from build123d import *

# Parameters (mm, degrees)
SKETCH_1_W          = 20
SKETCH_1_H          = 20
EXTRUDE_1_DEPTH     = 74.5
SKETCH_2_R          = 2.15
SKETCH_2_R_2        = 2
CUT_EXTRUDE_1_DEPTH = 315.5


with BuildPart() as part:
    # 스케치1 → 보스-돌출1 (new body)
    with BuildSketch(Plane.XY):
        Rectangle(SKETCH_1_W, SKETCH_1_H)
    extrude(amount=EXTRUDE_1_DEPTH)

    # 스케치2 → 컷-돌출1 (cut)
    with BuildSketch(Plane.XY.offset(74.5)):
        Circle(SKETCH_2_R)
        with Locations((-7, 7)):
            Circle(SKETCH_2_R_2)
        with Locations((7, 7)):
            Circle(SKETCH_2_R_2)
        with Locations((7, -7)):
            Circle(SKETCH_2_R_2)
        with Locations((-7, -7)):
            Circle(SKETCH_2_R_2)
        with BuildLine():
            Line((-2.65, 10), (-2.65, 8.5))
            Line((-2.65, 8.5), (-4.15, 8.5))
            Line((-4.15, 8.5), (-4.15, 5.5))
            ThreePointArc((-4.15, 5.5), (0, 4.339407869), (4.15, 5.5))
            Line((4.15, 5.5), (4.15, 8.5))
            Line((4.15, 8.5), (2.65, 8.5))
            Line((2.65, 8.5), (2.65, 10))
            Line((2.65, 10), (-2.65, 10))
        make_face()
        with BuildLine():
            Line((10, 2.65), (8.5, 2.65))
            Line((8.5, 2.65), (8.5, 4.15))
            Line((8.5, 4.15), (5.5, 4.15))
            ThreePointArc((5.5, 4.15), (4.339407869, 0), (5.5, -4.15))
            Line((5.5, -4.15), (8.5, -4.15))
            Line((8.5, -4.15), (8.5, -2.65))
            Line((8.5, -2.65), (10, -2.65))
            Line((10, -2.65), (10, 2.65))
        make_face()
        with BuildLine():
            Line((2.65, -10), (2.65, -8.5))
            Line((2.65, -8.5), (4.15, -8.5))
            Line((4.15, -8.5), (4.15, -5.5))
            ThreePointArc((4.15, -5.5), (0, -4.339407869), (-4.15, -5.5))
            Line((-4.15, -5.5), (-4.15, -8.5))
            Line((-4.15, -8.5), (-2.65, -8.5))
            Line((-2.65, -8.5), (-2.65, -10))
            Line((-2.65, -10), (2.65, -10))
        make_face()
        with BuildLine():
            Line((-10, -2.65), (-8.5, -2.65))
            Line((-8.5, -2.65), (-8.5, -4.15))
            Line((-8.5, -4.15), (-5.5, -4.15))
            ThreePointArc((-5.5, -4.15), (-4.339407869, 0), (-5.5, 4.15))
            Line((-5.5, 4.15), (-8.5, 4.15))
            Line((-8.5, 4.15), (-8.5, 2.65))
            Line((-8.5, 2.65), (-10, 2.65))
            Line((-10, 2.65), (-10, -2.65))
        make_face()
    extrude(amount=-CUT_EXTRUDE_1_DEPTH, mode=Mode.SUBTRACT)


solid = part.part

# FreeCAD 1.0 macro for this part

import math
import FreeCAD as App
import Part
import Sketcher
from FreeCAD import Vector
Q = App.Units.Quantity


def add_polygon(sketch, points):
    """Adds a closed chain of lines whose ends are joined by coincident constraints."""
    first, n = sketch.GeometryCount, len(points)
    for a, b in zip(points, points[1:] + points[:1]):
        sketch.addGeometry(Part.LineSegment(App.Vector(*a, 0), App.Vector(*b, 0)), False)
    for i in range(n):
        sketch.addConstraint(Sketcher.Constraint("Coincident", first + i, 2, first + (i + 1) % n, 1))

doc = App.newDocument("Part")
body = doc.addObject("PartDesign::Body", "Body")

# Sketch on XY plane
sketch1 = body.newObject("Sketcher::SketchObject", "Sketch")
sketch1.AttachmentSupport = (doc.getObject("XY_Plane"), [""])
sketch1.MapMode = "FlatFace"
add_polygon(sketch1, [(-10, 10), (-10, -10), (10, -10), (10, 10)])  # lines 0-3
sketch1.addConstraint(Sketcher.Constraint("Vertical", 0))
sketch1.addConstraint(Sketcher.Constraint("Horizontal", 1))
sketch1.addConstraint(Sketcher.Constraint("Vertical", 2))
sketch1.addConstraint(Sketcher.Constraint("Horizontal", 3))
sketch1.addConstraint(Sketcher.Constraint("Symmetric", 0, 2, 2, 2, -1, 1))
sketch1.addConstraint(Sketcher.Constraint("Equal", 3, 0))
sketch1.addConstraint(Sketcher.Constraint("DistanceX", 1, 1, 1, 2, Q("20 mm")))
pad1 = body.newObject("PartDesign::Pad", "Pad")
pad1.Profile = sketch1
pad1.Length = 74.5

# Sketch on XY plane
sketch2 = body.newObject("Sketcher::SketchObject", "Sketch001")
sketch2.AttachmentSupport = (doc.getObject("XY_Plane"), [""])
sketch2.MapMode = "FlatFace"
sketch2.AttachmentOffset = App.Placement(Vector(0, 0, 74.5), App.Rotation())
sketch2.addGeometry(Part.Circle(Vector(0, 0, 0), Vector(0, 0, 1), 2.15), False)
sketch2.addGeometry(Part.Circle(Vector(-7, 7, 0), Vector(0, 0, 1), 2), False)
sketch2.addGeometry(Part.Circle(Vector(7, 7, 0), Vector(0, 0, 1), 2), False)
sketch2.addGeometry(Part.Circle(Vector(7, -7, 0), Vector(0, 0, 1), 2), False)
sketch2.addGeometry(Part.Circle(Vector(-7, -7, 0), Vector(0, 0, 1), 2), False)
sketch2.addGeometry(Part.LineSegment(Vector(-2.65, 10, 0), Vector(-2.65, 8.5, 0)), False)
sketch2.addGeometry(Part.LineSegment(Vector(-2.65, 8.5, 0), Vector(-4.15, 8.5, 0)), False)
sketch2.addGeometry(Part.LineSegment(Vector(-4.15, 8.5, 0), Vector(-4.15, 5.5, 0)), False)
sketch2.addGeometry(Part.ArcOfCircle(Part.Circle(Vector(0, 12.339408, 0), Vector(0, 0, 1), 8), math.radians(-121.248441), math.radians(-58.751559)), False)
sketch2.addGeometry(Part.LineSegment(Vector(4.15, 5.5, 0), Vector(4.15, 8.5, 0)), False)
sketch2.addGeometry(Part.LineSegment(Vector(4.15, 8.5, 0), Vector(2.65, 8.5, 0)), False)
sketch2.addGeometry(Part.LineSegment(Vector(2.65, 8.5, 0), Vector(2.65, 10, 0)), False)
sketch2.addGeometry(Part.LineSegment(Vector(2.65, 10, 0), Vector(-2.65, 10, 0)), False)
sketch2.addGeometry(Part.LineSegment(Vector(10, 2.65, 0), Vector(8.5, 2.65, 0)), False)
sketch2.addGeometry(Part.LineSegment(Vector(8.5, 2.65, 0), Vector(8.5, 4.15, 0)), False)
sketch2.addGeometry(Part.LineSegment(Vector(8.5, 4.15, 0), Vector(5.5, 4.15, 0)), False)
sketch2.addGeometry(Part.ArcOfCircle(Part.Circle(Vector(12.339408, 0, 0), Vector(0, 0, 1), 8), math.radians(148.751559), math.radians(211.248441)), False)
sketch2.addGeometry(Part.LineSegment(Vector(5.5, -4.15, 0), Vector(8.5, -4.15, 0)), False)
sketch2.addGeometry(Part.LineSegment(Vector(8.5, -4.15, 0), Vector(8.5, -2.65, 0)), False)
sketch2.addGeometry(Part.LineSegment(Vector(8.5, -2.65, 0), Vector(10, -2.65, 0)), False)
sketch2.addGeometry(Part.LineSegment(Vector(10, -2.65, 0), Vector(10, 2.65, 0)), False)
sketch2.addGeometry(Part.LineSegment(Vector(2.65, -10, 0), Vector(2.65, -8.5, 0)), False)
sketch2.addGeometry(Part.LineSegment(Vector(2.65, -8.5, 0), Vector(4.15, -8.5, 0)), False)
sketch2.addGeometry(Part.LineSegment(Vector(4.15, -8.5, 0), Vector(4.15, -5.5, 0)), False)
sketch2.addGeometry(Part.ArcOfCircle(Part.Circle(Vector(0, -12.339408, 0), Vector(0, 0, 1), 8), math.radians(58.751559), math.radians(121.248441)), False)
sketch2.addGeometry(Part.LineSegment(Vector(-4.15, -5.5, 0), Vector(-4.15, -8.5, 0)), False)
sketch2.addGeometry(Part.LineSegment(Vector(-4.15, -8.5, 0), Vector(-2.65, -8.5, 0)), False)
sketch2.addGeometry(Part.LineSegment(Vector(-2.65, -8.5, 0), Vector(-2.65, -10, 0)), False)
sketch2.addGeometry(Part.LineSegment(Vector(-2.65, -10, 0), Vector(2.65, -10, 0)), False)
sketch2.addGeometry(Part.LineSegment(Vector(-10, -2.65, 0), Vector(-8.5, -2.65, 0)), False)
sketch2.addGeometry(Part.LineSegment(Vector(-8.5, -2.65, 0), Vector(-8.5, -4.15, 0)), False)
sketch2.addGeometry(Part.LineSegment(Vector(-8.5, -4.15, 0), Vector(-5.5, -4.15, 0)), False)
sketch2.addGeometry(Part.ArcOfCircle(Part.Circle(Vector(-12.339408, 0, 0), Vector(0, 0, 1), 8), math.radians(-31.248441), math.radians(31.248441)), False)
sketch2.addGeometry(Part.LineSegment(Vector(-5.5, 4.15, 0), Vector(-8.5, 4.15, 0)), False)
sketch2.addGeometry(Part.LineSegment(Vector(-8.5, 4.15, 0), Vector(-8.5, 2.65, 0)), False)
sketch2.addGeometry(Part.LineSegment(Vector(-8.5, 2.65, 0), Vector(-10, 2.65, 0)), False)
sketch2.addGeometry(Part.LineSegment(Vector(-10, 2.65, 0), Vector(-10, -2.65, 0)), False)
sketch2.addConstraint(Sketcher.Constraint("Coincident", 5, 2, 6, 1))
sketch2.addConstraint(Sketcher.Constraint("Coincident", 6, 2, 7, 1))
sketch2.addConstraint(Sketcher.Constraint("Coincident", 7, 2, 8, 1))
sketch2.addConstraint(Sketcher.Constraint("Coincident", 8, 2, 9, 1))
sketch2.addConstraint(Sketcher.Constraint("Coincident", 9, 2, 10, 1))
sketch2.addConstraint(Sketcher.Constraint("Coincident", 10, 2, 11, 1))
sketch2.addConstraint(Sketcher.Constraint("Coincident", 11, 2, 12, 1))
sketch2.addConstraint(Sketcher.Constraint("Coincident", 12, 2, 5, 1))
sketch2.addConstraint(Sketcher.Constraint("Coincident", 13, 2, 14, 1))
sketch2.addConstraint(Sketcher.Constraint("Coincident", 14, 2, 15, 1))
sketch2.addConstraint(Sketcher.Constraint("Coincident", 15, 2, 16, 1))
sketch2.addConstraint(Sketcher.Constraint("Coincident", 16, 2, 17, 1))
sketch2.addConstraint(Sketcher.Constraint("Coincident", 17, 2, 18, 1))
sketch2.addConstraint(Sketcher.Constraint("Coincident", 18, 2, 19, 1))
sketch2.addConstraint(Sketcher.Constraint("Coincident", 19, 2, 20, 1))
sketch2.addConstraint(Sketcher.Constraint("Coincident", 20, 2, 13, 1))
sketch2.addConstraint(Sketcher.Constraint("Coincident", 21, 2, 22, 1))
sketch2.addConstraint(Sketcher.Constraint("Coincident", 22, 2, 23, 1))
sketch2.addConstraint(Sketcher.Constraint("Coincident", 23, 2, 24, 1))
sketch2.addConstraint(Sketcher.Constraint("Coincident", 24, 2, 25, 1))
sketch2.addConstraint(Sketcher.Constraint("Coincident", 25, 2, 26, 1))
sketch2.addConstraint(Sketcher.Constraint("Coincident", 26, 2, 27, 1))
sketch2.addConstraint(Sketcher.Constraint("Coincident", 27, 2, 28, 1))
sketch2.addConstraint(Sketcher.Constraint("Coincident", 28, 2, 21, 1))
sketch2.addConstraint(Sketcher.Constraint("Coincident", 29, 2, 30, 1))
sketch2.addConstraint(Sketcher.Constraint("Coincident", 30, 2, 31, 1))
sketch2.addConstraint(Sketcher.Constraint("Coincident", 31, 2, 32, 1))
sketch2.addConstraint(Sketcher.Constraint("Coincident", 32, 2, 33, 1))
sketch2.addConstraint(Sketcher.Constraint("Coincident", 33, 2, 34, 1))
sketch2.addConstraint(Sketcher.Constraint("Coincident", 34, 2, 35, 1))
sketch2.addConstraint(Sketcher.Constraint("Coincident", 35, 2, 36, 1))
sketch2.addConstraint(Sketcher.Constraint("Coincident", 36, 2, 29, 1))
sketch2.addConstraint(Sketcher.Constraint("Vertical", 5))
sketch2.addConstraint(Sketcher.Constraint("Horizontal", 6))
sketch2.addConstraint(Sketcher.Constraint("Vertical", 7))
sketch2.addConstraint(Sketcher.Constraint("Vertical", 9))
sketch2.addConstraint(Sketcher.Constraint("Horizontal", 10))
sketch2.addConstraint(Sketcher.Constraint("Vertical", 11))
sketch2.addConstraint(Sketcher.Constraint("Horizontal", 12))
sketch2.addConstraint(Sketcher.Constraint("Horizontal", 13))
sketch2.addConstraint(Sketcher.Constraint("Vertical", 14))
sketch2.addConstraint(Sketcher.Constraint("Horizontal", 15))
sketch2.addConstraint(Sketcher.Constraint("Horizontal", 17))
sketch2.addConstraint(Sketcher.Constraint("Vertical", 18))
sketch2.addConstraint(Sketcher.Constraint("Horizontal", 19))
sketch2.addConstraint(Sketcher.Constraint("Vertical", 20))
sketch2.addConstraint(Sketcher.Constraint("Vertical", 21))
sketch2.addConstraint(Sketcher.Constraint("Horizontal", 22))
sketch2.addConstraint(Sketcher.Constraint("Vertical", 23))
sketch2.addConstraint(Sketcher.Constraint("Vertical", 25))
sketch2.addConstraint(Sketcher.Constraint("Horizontal", 26))
sketch2.addConstraint(Sketcher.Constraint("Vertical", 27))
sketch2.addConstraint(Sketcher.Constraint("Horizontal", 28))
sketch2.addConstraint(Sketcher.Constraint("Horizontal", 29))
sketch2.addConstraint(Sketcher.Constraint("Vertical", 30))
sketch2.addConstraint(Sketcher.Constraint("Horizontal", 31))
sketch2.addConstraint(Sketcher.Constraint("Horizontal", 33))
sketch2.addConstraint(Sketcher.Constraint("Vertical", 34))
sketch2.addConstraint(Sketcher.Constraint("Horizontal", 35))
sketch2.addConstraint(Sketcher.Constraint("Vertical", 36))
sketch2.addConstraint(Sketcher.Constraint("Coincident", 0, 3, -1, 1))
sketch2.addConstraint(Sketcher.Constraint("Equal", 1, 2))
sketch2.addConstraint(Sketcher.Constraint("Equal", 2, 3))
sketch2.addConstraint(Sketcher.Constraint("Equal", 3, 4))
sketch2.addConstraint(Sketcher.Constraint("Equal", 8, 16))
sketch2.addConstraint(Sketcher.Constraint("Equal", 16, 24))
sketch2.addConstraint(Sketcher.Constraint("Equal", 24, 32))
sketch2.addConstraint(Sketcher.Constraint("Symmetric", 1, 3, 3, 3, -1, 1))
sketch2.addConstraint(Sketcher.Constraint("Symmetric", 2, 3, 4, 3, -1, 1))
sketch2.addConstraint(Sketcher.Constraint("Symmetric", 8, 3, 24, 3, -1, 1))
sketch2.addConstraint(Sketcher.Constraint("Symmetric", 16, 3, 32, 3, -1, 1))
sketch2.addConstraint(Sketcher.Constraint("Symmetric", 5, 2, 21, 2, -1, 1))
sketch2.addConstraint(Sketcher.Constraint("Symmetric", 9, 2, 25, 2, -1, 1))
sketch2.addConstraint(Sketcher.Constraint("Symmetric", 11, 2, 27, 2, -1, 1))
sketch2.addConstraint(Sketcher.Constraint("Symmetric", 13, 2, 29, 2, -1, 1))
sketch2.addConstraint(Sketcher.Constraint("Symmetric", 17, 2, 33, 2, -1, 1))
sketch2.addConstraint(Sketcher.Constraint("Symmetric", 19, 2, 35, 2, -1, 1))
sketch2.addConstraint(Sketcher.Constraint("Symmetric", 1, 3, 2, 3, -2))
sketch2.addConstraint(Sketcher.Constraint("Symmetric", 7, 2, 8, 2, -2))
sketch2.addConstraint(Sketcher.Constraint("Symmetric", 5, 2, 10, 2, -2))
sketch2.addConstraint(Sketcher.Constraint("Symmetric", 18, 2, 29, 2, -2))
sketch2.addConstraint(Sketcher.Constraint("Symmetric", 16, 2, 31, 2, -2))
sketch2.addConstraint(Sketcher.Constraint("Horizontal", 23, 2, 24, 2))
sketch2.addConstraint(Sketcher.Constraint("Horizontal", 15, 2, 32, 2))
sketch2.addConstraint(Sketcher.Constraint("Equal", 10, 13))
sketch2.addConstraint(Sketcher.Constraint("Equal", 35, 5))
sketch2.addConstraint(Sketcher.Constraint("Equal", 33, 7))
sketch2.addConstraint(Sketcher.Constraint("Equal", 11, 14))
sketch2.addConstraint(Sketcher.Constraint("Equal", 28, 20))
sketch2.addConstraint(Sketcher.Constraint("Diameter", 1, Q("4 mm")))
sketch2.addConstraint(Sketcher.Constraint("Radius", 8, Q("8 mm")))
sketch2.addConstraint(Sketcher.Constraint("Diameter", 0, Q("4.3 mm")))
sketch2.addConstraint(Sketcher.Constraint("DistanceX", 15, 2, 15, 1, Q("3 mm")))
sketch2.addConstraint(Sketcher.Constraint("DistanceX", 6, 2, 6, 1, Q("1.5 mm")))
sketch2.addConstraint(Sketcher.Constraint("DistanceX", 12, 2, 12, 1, Q("5.3 mm")))
sketch2.addConstraint(Sketcher.Constraint("DistanceX", 1, 3, -1, 1, Q("7 mm")))
sketch2.addConstraint(Sketcher.Constraint("DistanceY", -1, 1, 1, 3, Q("7 mm")))
sketch2.addConstraint(Sketcher.Constraint("DistanceY", -1, 1, 11, 2, Q("10 mm")))
sketch2.addConstraint(Sketcher.Constraint("DistanceX", -1, 1, 19, 2, Q("10 mm")))
pocket1 = body.newObject("PartDesign::Pocket", "Pocket")
pocket1.Profile = sketch2
pocket1.Length = 315.5

doc.recompute()
